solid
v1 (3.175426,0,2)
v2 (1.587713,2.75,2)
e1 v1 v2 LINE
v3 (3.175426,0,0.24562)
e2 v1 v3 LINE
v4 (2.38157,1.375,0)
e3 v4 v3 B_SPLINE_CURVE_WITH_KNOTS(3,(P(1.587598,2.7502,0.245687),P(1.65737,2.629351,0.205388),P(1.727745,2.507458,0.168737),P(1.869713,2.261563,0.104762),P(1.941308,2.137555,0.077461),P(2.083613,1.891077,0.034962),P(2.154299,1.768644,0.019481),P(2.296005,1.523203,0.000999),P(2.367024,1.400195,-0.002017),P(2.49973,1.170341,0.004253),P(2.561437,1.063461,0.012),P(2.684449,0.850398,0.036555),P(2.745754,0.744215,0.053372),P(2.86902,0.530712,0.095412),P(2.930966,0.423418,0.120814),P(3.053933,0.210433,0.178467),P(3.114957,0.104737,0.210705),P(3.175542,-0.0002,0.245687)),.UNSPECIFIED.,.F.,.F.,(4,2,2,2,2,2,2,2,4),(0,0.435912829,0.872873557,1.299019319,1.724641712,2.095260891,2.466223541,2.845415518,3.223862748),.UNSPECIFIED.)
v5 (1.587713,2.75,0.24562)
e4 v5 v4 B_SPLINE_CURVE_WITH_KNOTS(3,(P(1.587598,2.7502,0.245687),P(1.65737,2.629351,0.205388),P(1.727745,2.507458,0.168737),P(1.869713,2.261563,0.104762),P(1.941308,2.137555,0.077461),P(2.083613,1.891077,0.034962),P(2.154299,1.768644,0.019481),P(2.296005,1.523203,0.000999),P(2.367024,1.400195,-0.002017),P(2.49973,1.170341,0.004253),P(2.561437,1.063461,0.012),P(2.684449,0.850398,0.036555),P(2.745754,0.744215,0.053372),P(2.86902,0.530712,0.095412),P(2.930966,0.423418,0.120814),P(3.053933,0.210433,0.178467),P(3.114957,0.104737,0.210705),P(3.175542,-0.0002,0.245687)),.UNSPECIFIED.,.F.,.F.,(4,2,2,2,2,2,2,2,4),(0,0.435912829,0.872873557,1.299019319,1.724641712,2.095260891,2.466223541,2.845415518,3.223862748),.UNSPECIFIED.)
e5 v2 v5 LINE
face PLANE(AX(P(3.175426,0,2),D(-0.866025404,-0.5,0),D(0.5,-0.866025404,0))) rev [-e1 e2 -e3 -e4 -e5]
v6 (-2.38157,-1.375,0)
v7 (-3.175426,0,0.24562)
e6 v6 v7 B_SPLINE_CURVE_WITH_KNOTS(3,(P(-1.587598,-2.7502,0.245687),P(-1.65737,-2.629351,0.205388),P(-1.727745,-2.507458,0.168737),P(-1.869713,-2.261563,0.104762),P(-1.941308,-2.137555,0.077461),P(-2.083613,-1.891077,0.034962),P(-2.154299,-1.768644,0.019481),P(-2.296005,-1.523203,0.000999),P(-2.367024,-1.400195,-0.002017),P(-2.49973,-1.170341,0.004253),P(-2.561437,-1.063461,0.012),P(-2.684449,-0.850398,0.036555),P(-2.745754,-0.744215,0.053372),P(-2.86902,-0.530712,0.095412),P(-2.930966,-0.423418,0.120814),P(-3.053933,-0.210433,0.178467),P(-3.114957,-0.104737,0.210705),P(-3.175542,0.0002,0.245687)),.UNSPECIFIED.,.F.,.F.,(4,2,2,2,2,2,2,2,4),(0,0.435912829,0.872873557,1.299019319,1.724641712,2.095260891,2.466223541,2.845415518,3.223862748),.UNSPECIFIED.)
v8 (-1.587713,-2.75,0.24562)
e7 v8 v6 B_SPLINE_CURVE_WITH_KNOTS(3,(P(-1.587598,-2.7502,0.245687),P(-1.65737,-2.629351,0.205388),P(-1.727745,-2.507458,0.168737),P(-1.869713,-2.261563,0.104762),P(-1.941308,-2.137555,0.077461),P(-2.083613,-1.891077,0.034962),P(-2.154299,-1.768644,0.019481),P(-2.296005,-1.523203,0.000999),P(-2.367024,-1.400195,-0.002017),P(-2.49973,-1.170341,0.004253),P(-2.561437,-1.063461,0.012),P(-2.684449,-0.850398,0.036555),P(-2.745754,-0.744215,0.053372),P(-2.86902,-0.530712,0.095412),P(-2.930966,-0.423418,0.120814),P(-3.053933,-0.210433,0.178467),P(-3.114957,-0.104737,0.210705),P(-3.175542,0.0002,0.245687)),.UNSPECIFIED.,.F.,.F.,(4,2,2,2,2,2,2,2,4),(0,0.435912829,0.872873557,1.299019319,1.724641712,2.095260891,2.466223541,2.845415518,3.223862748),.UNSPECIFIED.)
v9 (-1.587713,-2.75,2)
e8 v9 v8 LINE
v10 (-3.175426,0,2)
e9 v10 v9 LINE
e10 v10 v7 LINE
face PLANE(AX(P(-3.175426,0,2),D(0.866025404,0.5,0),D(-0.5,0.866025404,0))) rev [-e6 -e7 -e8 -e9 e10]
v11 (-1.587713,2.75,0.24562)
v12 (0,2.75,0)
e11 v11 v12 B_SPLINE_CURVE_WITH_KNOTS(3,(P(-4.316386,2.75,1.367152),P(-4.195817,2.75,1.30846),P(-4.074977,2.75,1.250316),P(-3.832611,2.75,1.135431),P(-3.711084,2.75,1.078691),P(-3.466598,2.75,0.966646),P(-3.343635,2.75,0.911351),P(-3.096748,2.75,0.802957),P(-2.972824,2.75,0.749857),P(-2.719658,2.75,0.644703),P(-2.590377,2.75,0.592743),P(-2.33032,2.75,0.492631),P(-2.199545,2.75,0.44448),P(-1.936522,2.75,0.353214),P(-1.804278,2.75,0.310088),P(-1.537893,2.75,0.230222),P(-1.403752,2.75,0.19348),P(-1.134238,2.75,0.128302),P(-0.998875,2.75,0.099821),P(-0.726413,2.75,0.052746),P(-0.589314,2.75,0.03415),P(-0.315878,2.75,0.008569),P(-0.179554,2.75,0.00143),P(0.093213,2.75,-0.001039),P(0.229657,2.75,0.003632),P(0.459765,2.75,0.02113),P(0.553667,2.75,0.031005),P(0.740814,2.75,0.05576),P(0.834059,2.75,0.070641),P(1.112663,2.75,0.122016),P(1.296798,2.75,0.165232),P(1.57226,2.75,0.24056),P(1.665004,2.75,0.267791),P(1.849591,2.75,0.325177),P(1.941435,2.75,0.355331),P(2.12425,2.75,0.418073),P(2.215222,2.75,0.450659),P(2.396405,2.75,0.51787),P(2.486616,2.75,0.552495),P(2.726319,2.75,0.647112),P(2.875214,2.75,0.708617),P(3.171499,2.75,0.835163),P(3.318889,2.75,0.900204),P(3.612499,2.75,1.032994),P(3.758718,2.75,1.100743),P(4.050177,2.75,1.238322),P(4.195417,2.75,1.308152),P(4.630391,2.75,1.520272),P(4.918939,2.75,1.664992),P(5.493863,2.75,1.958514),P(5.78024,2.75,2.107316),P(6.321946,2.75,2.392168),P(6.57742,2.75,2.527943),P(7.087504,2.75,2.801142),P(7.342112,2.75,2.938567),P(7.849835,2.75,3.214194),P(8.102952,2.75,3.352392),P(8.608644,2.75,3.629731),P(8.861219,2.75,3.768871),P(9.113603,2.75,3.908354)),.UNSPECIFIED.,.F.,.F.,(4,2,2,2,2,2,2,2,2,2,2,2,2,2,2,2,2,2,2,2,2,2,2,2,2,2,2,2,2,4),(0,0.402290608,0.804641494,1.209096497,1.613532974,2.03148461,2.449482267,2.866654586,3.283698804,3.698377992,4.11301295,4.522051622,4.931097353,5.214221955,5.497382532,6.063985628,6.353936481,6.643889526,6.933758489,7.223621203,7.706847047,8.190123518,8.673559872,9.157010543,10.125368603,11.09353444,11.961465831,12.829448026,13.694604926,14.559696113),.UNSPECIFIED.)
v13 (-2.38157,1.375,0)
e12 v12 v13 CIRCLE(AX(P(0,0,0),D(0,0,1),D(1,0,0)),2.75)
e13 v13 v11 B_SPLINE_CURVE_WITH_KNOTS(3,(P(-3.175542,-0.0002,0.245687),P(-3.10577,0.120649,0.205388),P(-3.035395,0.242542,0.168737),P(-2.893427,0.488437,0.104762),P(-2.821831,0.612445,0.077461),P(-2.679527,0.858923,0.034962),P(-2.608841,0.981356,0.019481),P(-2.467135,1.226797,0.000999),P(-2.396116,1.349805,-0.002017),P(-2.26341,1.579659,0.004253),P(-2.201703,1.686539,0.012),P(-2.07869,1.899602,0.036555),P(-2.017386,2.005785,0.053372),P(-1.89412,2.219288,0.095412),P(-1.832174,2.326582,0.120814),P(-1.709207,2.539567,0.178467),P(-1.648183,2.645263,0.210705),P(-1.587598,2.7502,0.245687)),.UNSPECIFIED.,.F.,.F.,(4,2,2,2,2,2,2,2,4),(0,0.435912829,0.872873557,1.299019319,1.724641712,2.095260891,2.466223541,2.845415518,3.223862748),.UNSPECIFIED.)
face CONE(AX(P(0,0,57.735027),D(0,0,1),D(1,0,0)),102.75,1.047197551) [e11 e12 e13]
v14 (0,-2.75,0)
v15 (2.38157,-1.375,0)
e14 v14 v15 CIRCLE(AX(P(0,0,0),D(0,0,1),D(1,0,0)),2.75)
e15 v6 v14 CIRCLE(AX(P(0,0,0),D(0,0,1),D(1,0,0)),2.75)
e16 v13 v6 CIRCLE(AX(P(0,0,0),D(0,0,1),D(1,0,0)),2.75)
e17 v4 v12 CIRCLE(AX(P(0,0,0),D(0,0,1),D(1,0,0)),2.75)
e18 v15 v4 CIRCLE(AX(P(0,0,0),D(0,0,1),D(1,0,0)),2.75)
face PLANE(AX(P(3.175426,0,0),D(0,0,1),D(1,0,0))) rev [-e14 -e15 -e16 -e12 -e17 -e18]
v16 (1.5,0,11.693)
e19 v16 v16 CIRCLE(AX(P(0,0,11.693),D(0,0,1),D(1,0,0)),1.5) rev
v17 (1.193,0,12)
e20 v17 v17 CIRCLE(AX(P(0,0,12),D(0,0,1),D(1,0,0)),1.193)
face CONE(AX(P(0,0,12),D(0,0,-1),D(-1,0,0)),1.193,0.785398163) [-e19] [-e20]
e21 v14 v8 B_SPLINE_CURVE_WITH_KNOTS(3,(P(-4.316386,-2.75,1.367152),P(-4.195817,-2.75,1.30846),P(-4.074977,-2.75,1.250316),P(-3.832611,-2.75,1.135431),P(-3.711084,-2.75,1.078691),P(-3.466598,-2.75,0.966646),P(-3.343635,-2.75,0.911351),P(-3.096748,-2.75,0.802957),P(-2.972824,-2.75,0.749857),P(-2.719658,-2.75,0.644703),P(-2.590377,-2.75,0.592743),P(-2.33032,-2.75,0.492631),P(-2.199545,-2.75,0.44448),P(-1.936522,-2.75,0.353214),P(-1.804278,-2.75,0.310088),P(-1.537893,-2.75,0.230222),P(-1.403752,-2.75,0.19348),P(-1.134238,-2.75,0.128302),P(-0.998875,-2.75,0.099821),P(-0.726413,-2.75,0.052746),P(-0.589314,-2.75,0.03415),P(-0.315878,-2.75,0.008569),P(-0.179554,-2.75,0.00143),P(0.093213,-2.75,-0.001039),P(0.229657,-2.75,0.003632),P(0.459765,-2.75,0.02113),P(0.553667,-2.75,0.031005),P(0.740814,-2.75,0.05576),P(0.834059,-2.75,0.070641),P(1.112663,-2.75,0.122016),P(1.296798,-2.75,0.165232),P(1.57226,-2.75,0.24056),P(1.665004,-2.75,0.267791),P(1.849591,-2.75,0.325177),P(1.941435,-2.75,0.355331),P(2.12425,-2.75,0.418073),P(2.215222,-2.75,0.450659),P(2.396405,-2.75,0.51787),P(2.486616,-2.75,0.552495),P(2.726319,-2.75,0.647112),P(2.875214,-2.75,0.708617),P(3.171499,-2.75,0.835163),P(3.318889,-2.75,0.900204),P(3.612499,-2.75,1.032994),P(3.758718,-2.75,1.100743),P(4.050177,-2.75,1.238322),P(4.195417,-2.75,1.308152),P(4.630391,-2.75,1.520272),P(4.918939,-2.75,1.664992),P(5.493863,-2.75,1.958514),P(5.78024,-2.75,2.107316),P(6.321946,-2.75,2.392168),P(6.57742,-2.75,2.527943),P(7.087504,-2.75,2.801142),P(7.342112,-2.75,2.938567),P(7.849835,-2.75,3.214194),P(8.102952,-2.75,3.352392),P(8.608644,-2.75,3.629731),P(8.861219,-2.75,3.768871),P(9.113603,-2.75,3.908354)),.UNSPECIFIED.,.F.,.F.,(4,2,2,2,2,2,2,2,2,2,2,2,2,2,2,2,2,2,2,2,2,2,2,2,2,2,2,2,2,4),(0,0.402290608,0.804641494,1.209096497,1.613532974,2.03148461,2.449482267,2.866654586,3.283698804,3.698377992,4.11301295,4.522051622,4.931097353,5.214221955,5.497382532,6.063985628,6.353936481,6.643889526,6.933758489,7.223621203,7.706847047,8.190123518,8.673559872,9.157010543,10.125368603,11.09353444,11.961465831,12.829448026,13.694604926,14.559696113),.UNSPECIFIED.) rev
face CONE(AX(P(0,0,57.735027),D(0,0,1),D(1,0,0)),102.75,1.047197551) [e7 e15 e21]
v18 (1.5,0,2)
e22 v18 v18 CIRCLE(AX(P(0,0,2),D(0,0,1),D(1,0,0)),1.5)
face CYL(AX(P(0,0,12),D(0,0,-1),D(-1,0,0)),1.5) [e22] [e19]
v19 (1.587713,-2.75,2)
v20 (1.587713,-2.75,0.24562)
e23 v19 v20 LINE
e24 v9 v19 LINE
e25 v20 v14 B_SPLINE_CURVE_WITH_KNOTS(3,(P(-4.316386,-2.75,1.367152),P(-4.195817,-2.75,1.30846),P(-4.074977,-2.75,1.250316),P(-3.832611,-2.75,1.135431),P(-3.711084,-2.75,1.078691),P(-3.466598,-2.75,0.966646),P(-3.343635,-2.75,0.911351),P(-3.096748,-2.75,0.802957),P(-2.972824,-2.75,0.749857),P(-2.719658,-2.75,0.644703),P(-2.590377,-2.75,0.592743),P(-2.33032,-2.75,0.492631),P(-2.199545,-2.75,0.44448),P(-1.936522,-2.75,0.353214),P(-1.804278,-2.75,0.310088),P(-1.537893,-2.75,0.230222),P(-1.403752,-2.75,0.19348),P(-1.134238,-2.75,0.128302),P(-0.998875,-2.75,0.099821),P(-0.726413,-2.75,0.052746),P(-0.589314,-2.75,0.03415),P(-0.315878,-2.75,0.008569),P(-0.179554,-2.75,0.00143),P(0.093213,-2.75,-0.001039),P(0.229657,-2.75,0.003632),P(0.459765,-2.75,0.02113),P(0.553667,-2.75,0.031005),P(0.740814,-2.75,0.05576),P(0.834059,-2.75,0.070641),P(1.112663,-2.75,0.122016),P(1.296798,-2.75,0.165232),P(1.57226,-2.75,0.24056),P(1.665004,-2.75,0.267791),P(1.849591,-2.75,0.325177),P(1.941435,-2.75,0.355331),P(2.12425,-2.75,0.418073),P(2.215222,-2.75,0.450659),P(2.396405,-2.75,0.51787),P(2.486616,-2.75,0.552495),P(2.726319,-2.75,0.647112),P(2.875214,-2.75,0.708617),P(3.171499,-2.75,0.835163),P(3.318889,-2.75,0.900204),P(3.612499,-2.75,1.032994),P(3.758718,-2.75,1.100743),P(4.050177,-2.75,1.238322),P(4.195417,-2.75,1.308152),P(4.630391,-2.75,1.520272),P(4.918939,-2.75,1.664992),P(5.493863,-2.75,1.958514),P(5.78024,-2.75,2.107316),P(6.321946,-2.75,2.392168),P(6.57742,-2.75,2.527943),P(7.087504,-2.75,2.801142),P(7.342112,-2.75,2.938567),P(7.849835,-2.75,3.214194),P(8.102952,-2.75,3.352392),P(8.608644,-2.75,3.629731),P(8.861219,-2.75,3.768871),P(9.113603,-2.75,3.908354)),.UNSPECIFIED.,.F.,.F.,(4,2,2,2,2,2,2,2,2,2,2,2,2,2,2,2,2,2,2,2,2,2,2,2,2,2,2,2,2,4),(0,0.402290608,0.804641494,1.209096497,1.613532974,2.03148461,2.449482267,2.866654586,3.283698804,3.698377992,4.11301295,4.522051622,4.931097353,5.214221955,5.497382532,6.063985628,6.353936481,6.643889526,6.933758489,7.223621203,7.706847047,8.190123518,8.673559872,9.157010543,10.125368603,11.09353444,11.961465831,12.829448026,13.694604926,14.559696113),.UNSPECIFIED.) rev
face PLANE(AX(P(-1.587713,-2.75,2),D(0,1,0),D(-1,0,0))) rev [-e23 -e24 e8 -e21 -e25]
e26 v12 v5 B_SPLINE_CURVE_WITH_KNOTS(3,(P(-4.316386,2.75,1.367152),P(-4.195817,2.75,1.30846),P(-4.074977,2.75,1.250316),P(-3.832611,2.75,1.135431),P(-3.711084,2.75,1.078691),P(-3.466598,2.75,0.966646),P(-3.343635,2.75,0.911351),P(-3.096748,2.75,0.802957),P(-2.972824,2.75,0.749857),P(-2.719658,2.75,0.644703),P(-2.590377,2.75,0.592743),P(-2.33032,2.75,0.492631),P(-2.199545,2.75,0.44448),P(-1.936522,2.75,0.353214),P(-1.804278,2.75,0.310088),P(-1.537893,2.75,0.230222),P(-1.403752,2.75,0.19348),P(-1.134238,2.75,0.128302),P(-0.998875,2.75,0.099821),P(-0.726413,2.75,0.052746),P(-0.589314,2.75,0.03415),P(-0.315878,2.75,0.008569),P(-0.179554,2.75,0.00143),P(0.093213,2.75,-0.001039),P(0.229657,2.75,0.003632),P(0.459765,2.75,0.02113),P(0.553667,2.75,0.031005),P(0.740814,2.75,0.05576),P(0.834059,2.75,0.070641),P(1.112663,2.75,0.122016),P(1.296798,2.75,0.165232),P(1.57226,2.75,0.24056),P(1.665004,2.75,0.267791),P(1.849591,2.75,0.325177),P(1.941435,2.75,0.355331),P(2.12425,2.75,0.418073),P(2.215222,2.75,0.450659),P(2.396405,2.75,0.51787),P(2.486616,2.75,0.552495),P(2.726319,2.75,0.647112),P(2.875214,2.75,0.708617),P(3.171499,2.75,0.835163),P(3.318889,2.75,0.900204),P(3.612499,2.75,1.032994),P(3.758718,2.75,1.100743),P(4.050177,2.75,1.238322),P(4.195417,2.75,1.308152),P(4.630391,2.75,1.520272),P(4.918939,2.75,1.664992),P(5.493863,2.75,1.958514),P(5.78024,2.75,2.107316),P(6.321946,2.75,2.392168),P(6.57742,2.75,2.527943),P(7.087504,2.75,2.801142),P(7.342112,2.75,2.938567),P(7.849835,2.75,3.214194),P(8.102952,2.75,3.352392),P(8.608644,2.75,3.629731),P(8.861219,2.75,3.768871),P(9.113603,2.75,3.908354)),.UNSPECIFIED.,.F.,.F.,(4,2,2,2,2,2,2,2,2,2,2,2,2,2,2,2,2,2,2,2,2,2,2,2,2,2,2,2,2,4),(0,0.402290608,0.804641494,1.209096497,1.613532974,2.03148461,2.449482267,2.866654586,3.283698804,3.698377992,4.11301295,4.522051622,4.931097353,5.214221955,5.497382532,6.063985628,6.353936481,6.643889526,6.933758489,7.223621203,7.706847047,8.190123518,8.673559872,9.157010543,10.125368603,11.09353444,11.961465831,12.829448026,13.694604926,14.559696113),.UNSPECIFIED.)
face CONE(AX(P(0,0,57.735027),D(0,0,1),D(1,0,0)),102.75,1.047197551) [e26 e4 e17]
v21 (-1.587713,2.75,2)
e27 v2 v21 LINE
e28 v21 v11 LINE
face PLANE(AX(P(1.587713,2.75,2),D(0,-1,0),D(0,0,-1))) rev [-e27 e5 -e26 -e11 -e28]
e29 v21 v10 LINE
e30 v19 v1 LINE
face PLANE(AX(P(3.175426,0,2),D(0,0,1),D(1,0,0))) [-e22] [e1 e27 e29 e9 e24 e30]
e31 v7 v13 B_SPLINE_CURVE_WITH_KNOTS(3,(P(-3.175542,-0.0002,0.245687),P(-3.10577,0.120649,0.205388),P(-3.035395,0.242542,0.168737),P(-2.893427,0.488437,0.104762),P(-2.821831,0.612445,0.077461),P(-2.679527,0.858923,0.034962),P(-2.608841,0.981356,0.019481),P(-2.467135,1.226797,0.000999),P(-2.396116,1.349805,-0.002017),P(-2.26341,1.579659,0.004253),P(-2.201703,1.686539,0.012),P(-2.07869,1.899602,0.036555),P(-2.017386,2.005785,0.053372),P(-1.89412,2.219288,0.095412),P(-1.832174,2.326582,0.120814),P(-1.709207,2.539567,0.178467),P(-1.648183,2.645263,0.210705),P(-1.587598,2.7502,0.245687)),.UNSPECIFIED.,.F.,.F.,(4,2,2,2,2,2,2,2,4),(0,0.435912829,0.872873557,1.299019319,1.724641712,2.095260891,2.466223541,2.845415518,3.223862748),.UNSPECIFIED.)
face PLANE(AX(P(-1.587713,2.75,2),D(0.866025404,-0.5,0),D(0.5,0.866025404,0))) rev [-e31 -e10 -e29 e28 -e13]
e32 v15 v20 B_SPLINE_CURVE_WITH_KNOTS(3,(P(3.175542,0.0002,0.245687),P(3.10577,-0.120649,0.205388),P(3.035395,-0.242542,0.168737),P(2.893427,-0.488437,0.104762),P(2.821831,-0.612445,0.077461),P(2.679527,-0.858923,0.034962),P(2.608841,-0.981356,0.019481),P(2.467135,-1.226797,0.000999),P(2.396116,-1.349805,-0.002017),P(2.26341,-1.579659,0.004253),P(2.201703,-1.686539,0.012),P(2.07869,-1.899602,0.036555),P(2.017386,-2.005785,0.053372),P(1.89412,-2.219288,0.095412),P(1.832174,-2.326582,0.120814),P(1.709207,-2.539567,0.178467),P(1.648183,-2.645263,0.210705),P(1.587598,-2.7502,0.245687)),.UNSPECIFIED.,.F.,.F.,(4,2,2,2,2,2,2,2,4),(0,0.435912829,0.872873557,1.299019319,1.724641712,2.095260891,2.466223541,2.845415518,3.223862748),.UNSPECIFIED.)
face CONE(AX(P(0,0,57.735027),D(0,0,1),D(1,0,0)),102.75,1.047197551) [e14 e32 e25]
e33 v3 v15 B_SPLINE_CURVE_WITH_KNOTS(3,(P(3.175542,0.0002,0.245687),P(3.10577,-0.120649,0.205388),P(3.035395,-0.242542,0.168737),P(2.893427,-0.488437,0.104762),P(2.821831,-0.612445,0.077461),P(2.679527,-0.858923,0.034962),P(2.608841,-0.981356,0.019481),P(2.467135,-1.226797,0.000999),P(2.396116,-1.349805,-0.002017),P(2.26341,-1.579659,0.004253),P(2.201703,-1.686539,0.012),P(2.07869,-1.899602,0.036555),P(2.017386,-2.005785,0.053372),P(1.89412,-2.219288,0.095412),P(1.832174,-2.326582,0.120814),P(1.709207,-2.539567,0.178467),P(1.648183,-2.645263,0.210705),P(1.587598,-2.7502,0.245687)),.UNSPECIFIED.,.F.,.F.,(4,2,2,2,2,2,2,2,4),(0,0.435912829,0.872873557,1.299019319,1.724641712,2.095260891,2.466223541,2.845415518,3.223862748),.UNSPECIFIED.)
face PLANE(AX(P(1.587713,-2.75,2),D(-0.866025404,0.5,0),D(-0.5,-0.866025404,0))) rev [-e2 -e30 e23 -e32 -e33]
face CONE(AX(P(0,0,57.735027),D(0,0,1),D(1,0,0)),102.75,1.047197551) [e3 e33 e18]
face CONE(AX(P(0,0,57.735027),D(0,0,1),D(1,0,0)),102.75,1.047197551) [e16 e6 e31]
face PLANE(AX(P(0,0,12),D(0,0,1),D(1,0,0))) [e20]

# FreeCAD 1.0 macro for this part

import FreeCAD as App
import Part
import Sketcher
from FreeCAD import Vector
Q = App.Units.Quantity


def edges_at(feature, points):
    """Names of the edges that pass closest to the given points."""
    edges = feature.Shape.Edges
    near = lambda p: min(range(len(edges)), key=lambda i: edges[i].distToShape(Part.Vertex(*p))[0])
    return sorted({f"Edge{near(p) + 1}" for p in points})


def add_polygon(sketch, points):
    """Adds a closed chain of lines whose ends are joined by coincident constraints."""
    first, n = sketch.GeometryCount, len(points)
    for a, b in zip(points, points[1:] + points[:1]):
        sketch.addGeometry(Part.LineSegment(App.Vector(*a, 0), App.Vector(*b, 0)), False)
    for i in range(n):
        sketch.addConstraint(Sketcher.Constraint("Coincident", first + i, 2, first + (i + 1) % n, 1))

doc = App.newDocument("Part")
params = doc.addObject("Spreadsheet::Sheet", "Params")
for row, (alias, value) in enumerate([
    ("pad1_length", "2 mm"),
    ("sketch2_diameter", "3 mm"),
    ("pad2_length", "10 mm"),
    ("sketch3_width", "100 mm"),
    ("groove_angle", "360 deg"),
    ("chamfer_size", "0.307 mm"),
], start=1):
    params.set(f"A{row}", alias)
    params.set(f"B{row}", "=" + value)
    params.setAlias(f"B{row}", alias)

body = doc.addObject("PartDesign::Body", "Body")

sketch1 = doc.addObject("Sketcher::SketchObject", "Sketch")
body.addObject(sketch1)
sketch1.AttachmentSupport = (doc.XY_Plane, [""])
sketch1.MapMode = "FlatFace"
add_polygon(sketch1, [(3.2, 0), (1.6, 2.8), (-1.6, 2.8), (-3.2, 0), (-1.6, -2.8), (1.6, -2.8)])
sketch1.addConstraint(Sketcher.Constraint("Horizontal", 1))
sketch1.addConstraint(Sketcher.Constraint("Horizontal", 4))
sketch1.addConstraint(Sketcher.Constraint("Symmetric", 0, 2, 3, 2, -1, 1))
sketch1.addConstraint(Sketcher.Constraint("Symmetric", 2, 2, 5, 2, -1, 1))
sketch1.addConstraint(Sketcher.Constraint("PointOnObject", 2, 2, -1))
sketch1.addConstraint(Sketcher.Constraint("Parallel", 2, 5))
sketch1.addConstraint(Sketcher.Constraint("Vertical", 1, 2, 3, 2))
sketch1.addConstraint(Sketcher.Constraint("Angle", 0, Q("120 deg")))
sketch1.addConstraint(Sketcher.Constraint("DistanceY", 3, 2, 1, 2, Q("5.5 mm")))
sketch1.addConstraint(Sketcher.Constraint("DistanceX", 1, 2, 1, 1, Q("3.175426 mm")))
pad1 = doc.addObject("PartDesign::Pad", "Pad")
body.addObject(pad1)
pad1.Profile = sketch1
pad1.setExpression("Length", "Params.pad1_length")

sketch2 = doc.addObject("Sketcher::SketchObject", "Sketch001")
body.addObject(sketch2)
sketch2.AttachmentSupport = (doc.XY_Plane, [""])
sketch2.MapMode = "FlatFace"
sketch2.AttachmentOffset = App.Placement(Vector(0, 0, 2), App.Rotation())
sketch2.addGeometry(Part.Circle(Vector(0, 0, 0), Vector(0, 0, 1), 1.5), False)
sketch2.addConstraint(Sketcher.Constraint("Coincident", 0, 3, -1, 1))
sketch2.addConstraint(Sketcher.Constraint("Diameter", 0, Q("3 mm")))
sketch2.setExpression("Constraints[1]", "Params.sketch2_diameter")
pad2 = doc.addObject("PartDesign::Pad", "Pad001")
body.addObject(pad2)
pad2.Profile = sketch2
pad2.setExpression("Length", "Params.pad2_length")

sketch3 = doc.addObject("Sketcher::SketchObject", "Sketch002")
body.addObject(sketch3)
sketch3.AttachmentSupport = (doc.YZ_Plane, [""])
sketch3.MapMode = "FlatFace"
add_polygon(sketch3, [(3, 0), (103, 0), (103, 58)])
sketch3.addConstraint(Sketcher.Constraint("Horizontal", 0))
sketch3.addConstraint(Sketcher.Constraint("Vertical", 1))
sketch3.addConstraint(Sketcher.Constraint("PointOnObject", 0, 2, -1))
sketch3.addConstraint(Sketcher.Constraint("DistanceX", 0, 1, 0, 2, Q("100 mm")))
sketch3.addConstraint(Sketcher.Constraint("Angle", 2, Q("-150 deg")))
sketch3.addConstraint(Sketcher.Constraint("DistanceX", -1, 1, 0, 2, Q("102.75 mm")))
sketch3.setExpression("Constraints[6]", "Params.sketch3_width")
groove = doc.addObject("PartDesign::Groove", "Groove")
body.addObject(groove)
groove.Profile = sketch3
groove.ReferenceAxis = (sketch3, ["V_Axis"])
groove.setExpression("Angle", "Params.groove_angle")
doc.recompute()

chamfer = doc.addObject("PartDesign::Chamfer", "Chamfer")
body.addObject(chamfer)
chamfer.Base = (groove, edges_at(groove, [(-1.5, 0, 12)]))
chamfer.setExpression("Size", "Params.chamfer_size")

doc.recompute()
